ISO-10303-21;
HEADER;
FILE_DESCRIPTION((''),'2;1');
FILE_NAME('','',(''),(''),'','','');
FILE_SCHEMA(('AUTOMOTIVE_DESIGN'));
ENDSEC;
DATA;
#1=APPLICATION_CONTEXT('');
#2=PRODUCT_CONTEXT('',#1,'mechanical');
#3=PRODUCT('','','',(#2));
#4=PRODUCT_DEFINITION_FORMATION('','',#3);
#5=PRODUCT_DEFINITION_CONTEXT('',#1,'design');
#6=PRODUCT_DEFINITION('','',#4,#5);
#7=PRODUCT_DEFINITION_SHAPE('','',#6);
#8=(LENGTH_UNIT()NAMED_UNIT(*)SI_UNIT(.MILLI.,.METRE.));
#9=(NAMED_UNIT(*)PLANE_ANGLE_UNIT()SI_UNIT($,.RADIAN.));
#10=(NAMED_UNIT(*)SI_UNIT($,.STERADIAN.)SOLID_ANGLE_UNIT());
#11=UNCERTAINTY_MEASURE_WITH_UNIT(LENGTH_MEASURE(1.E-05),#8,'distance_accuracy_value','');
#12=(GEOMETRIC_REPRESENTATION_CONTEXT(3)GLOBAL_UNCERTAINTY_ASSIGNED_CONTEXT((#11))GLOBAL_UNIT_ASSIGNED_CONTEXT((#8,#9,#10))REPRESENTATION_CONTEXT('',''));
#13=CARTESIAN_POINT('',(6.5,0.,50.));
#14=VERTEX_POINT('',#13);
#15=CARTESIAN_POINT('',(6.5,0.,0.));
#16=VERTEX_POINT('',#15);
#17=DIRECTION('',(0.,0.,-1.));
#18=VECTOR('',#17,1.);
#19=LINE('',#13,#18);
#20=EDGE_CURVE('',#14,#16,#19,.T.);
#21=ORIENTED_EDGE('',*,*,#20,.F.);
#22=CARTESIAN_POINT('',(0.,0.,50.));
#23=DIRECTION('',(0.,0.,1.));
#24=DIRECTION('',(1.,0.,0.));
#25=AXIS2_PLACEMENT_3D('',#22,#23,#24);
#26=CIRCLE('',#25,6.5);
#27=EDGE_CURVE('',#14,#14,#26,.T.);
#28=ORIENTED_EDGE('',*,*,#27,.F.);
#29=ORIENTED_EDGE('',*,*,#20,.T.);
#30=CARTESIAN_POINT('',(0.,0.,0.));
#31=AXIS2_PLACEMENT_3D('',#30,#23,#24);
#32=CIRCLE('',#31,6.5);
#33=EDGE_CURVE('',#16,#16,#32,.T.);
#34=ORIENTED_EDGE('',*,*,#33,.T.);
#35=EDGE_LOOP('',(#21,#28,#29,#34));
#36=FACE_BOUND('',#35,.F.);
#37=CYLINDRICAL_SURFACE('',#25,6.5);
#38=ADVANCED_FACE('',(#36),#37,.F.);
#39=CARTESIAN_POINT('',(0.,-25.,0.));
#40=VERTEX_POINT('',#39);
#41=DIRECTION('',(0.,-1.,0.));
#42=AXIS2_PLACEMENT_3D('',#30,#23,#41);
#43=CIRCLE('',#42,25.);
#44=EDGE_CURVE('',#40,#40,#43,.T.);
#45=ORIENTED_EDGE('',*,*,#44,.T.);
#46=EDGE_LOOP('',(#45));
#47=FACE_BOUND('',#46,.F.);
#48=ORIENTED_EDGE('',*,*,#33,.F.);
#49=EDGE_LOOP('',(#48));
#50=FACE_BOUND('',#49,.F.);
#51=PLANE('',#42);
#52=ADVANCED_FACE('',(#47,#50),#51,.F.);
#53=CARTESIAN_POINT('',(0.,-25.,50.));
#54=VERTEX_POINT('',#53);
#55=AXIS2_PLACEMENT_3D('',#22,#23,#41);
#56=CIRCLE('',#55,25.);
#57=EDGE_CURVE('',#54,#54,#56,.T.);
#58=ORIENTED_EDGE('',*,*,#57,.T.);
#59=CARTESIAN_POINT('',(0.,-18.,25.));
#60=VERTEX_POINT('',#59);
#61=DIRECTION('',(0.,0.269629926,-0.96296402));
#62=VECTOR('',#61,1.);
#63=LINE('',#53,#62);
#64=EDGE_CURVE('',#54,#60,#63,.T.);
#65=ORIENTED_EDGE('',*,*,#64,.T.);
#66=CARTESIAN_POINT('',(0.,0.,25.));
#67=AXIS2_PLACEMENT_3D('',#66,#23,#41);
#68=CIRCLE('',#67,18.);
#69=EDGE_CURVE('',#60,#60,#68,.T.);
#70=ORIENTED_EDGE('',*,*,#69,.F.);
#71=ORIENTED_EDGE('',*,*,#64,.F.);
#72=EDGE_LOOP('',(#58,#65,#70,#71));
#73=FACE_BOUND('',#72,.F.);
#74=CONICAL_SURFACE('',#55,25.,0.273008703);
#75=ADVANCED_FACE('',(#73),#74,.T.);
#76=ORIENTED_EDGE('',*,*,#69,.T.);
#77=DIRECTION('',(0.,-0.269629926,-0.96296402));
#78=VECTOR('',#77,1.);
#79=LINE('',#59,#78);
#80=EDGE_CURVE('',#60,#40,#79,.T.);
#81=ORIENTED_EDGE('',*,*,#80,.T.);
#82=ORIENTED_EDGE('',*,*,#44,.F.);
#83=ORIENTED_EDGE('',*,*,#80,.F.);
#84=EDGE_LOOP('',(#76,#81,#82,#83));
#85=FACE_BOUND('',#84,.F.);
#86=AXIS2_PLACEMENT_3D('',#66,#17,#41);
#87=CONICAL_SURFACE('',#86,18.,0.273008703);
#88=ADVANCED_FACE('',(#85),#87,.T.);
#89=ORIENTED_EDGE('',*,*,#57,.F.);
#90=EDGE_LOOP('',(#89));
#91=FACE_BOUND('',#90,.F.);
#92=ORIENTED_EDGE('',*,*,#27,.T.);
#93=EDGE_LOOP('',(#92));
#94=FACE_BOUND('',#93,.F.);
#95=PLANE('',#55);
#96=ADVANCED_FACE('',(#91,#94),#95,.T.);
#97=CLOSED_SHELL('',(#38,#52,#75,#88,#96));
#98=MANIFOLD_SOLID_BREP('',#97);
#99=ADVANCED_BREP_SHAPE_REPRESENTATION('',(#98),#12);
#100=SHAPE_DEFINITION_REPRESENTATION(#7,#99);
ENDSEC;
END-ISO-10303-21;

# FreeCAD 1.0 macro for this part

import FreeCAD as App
import Part
import Sketcher
Q = App.Units.Quantity

doc = App.newDocument("Part")
body = doc.addObject("PartDesign::Body", "Body")

sketch1 = body.newObject("Sketcher::SketchObject", "Sketch")
sketch1.AttachmentSupport = (doc.getObject("YZ_Plane"), [""])
sketch1.MapMode = "FlatFace"
sketch1.addGeometry([
    Part.LineSegment(App.Vector(0, 0, 0), App.Vector(0, 50, 0)),
    Part.LineSegment(App.Vector(0, 50, 0), App.Vector(-25, 50, 0)),
    Part.LineSegment(App.Vector(-25, 50, 0), App.Vector(-18, 25, 0)),
    Part.LineSegment(App.Vector(-18, 25, 0), App.Vector(-25, 0, 0)),
    Part.LineSegment(App.Vector(-25, 0, 0), App.Vector(0, 0, 0)),
], False)
sketch1.addConstraint([
    Sketcher.Constraint("Coincident", 0, 2, 1, 1),
    Sketcher.Constraint("Coincident", 1, 2, 2, 1),
    Sketcher.Constraint("Coincident", 2, 2, 3, 1),
    Sketcher.Constraint("Coincident", 3, 2, 4, 1),
    Sketcher.Constraint("Coincident", 4, 2, 0, 1),
    Sketcher.Constraint("Vertical", 0),
    Sketcher.Constraint("Horizontal", 1),
    Sketcher.Constraint("Horizontal", 4),
    Sketcher.Constraint("Coincident", 4, 2, -1, 1),
    Sketcher.Constraint("Vertical", 1, 2, 3, 2),
    Sketcher.Constraint("Equal", 2, 3),
    Sketcher.Constraint("DistanceX", 1, 2, 1, 1, Q("25 mm")),
    Sketcher.Constraint("DistanceY", 0, 1, 0, 2, Q("50 mm")),
    Sketcher.Constraint("DistanceX", 2, 2, -1, 1, Q("18 mm")),
])
revolution = body.newObject("PartDesign::Revolution", "Revolution")
revolution.Profile = sketch1
revolution.ReferenceAxis = (sketch1, ["V_Axis"])
revolution.Angle = 360

sketch2 = body.newObject("Sketcher::SketchObject", "Sketch001")
sketch2.AttachmentSupport = (doc.getObject("XY_Plane"), [""])
sketch2.MapMode = "FlatFace"
sketch2.AttachmentOffset = App.Placement(App.Vector(0, 0, 50), App.Rotation())
sketch2.addGeometry(Part.Circle(App.Vector(0, 0, 0), App.Vector(0, 0, 1), 6), False)
sketch2.addConstraint([
    Sketcher.Constraint("Coincident", 0, 3, -1, 1),
    Sketcher.Constraint("Diameter", 0, Q("13 mm")),
])
pocket1 = body.newObject("PartDesign::Pocket", "Pocket")
pocket1.Profile = sketch2
pocket1.Type = "ThroughAll"

doc.recompute()
